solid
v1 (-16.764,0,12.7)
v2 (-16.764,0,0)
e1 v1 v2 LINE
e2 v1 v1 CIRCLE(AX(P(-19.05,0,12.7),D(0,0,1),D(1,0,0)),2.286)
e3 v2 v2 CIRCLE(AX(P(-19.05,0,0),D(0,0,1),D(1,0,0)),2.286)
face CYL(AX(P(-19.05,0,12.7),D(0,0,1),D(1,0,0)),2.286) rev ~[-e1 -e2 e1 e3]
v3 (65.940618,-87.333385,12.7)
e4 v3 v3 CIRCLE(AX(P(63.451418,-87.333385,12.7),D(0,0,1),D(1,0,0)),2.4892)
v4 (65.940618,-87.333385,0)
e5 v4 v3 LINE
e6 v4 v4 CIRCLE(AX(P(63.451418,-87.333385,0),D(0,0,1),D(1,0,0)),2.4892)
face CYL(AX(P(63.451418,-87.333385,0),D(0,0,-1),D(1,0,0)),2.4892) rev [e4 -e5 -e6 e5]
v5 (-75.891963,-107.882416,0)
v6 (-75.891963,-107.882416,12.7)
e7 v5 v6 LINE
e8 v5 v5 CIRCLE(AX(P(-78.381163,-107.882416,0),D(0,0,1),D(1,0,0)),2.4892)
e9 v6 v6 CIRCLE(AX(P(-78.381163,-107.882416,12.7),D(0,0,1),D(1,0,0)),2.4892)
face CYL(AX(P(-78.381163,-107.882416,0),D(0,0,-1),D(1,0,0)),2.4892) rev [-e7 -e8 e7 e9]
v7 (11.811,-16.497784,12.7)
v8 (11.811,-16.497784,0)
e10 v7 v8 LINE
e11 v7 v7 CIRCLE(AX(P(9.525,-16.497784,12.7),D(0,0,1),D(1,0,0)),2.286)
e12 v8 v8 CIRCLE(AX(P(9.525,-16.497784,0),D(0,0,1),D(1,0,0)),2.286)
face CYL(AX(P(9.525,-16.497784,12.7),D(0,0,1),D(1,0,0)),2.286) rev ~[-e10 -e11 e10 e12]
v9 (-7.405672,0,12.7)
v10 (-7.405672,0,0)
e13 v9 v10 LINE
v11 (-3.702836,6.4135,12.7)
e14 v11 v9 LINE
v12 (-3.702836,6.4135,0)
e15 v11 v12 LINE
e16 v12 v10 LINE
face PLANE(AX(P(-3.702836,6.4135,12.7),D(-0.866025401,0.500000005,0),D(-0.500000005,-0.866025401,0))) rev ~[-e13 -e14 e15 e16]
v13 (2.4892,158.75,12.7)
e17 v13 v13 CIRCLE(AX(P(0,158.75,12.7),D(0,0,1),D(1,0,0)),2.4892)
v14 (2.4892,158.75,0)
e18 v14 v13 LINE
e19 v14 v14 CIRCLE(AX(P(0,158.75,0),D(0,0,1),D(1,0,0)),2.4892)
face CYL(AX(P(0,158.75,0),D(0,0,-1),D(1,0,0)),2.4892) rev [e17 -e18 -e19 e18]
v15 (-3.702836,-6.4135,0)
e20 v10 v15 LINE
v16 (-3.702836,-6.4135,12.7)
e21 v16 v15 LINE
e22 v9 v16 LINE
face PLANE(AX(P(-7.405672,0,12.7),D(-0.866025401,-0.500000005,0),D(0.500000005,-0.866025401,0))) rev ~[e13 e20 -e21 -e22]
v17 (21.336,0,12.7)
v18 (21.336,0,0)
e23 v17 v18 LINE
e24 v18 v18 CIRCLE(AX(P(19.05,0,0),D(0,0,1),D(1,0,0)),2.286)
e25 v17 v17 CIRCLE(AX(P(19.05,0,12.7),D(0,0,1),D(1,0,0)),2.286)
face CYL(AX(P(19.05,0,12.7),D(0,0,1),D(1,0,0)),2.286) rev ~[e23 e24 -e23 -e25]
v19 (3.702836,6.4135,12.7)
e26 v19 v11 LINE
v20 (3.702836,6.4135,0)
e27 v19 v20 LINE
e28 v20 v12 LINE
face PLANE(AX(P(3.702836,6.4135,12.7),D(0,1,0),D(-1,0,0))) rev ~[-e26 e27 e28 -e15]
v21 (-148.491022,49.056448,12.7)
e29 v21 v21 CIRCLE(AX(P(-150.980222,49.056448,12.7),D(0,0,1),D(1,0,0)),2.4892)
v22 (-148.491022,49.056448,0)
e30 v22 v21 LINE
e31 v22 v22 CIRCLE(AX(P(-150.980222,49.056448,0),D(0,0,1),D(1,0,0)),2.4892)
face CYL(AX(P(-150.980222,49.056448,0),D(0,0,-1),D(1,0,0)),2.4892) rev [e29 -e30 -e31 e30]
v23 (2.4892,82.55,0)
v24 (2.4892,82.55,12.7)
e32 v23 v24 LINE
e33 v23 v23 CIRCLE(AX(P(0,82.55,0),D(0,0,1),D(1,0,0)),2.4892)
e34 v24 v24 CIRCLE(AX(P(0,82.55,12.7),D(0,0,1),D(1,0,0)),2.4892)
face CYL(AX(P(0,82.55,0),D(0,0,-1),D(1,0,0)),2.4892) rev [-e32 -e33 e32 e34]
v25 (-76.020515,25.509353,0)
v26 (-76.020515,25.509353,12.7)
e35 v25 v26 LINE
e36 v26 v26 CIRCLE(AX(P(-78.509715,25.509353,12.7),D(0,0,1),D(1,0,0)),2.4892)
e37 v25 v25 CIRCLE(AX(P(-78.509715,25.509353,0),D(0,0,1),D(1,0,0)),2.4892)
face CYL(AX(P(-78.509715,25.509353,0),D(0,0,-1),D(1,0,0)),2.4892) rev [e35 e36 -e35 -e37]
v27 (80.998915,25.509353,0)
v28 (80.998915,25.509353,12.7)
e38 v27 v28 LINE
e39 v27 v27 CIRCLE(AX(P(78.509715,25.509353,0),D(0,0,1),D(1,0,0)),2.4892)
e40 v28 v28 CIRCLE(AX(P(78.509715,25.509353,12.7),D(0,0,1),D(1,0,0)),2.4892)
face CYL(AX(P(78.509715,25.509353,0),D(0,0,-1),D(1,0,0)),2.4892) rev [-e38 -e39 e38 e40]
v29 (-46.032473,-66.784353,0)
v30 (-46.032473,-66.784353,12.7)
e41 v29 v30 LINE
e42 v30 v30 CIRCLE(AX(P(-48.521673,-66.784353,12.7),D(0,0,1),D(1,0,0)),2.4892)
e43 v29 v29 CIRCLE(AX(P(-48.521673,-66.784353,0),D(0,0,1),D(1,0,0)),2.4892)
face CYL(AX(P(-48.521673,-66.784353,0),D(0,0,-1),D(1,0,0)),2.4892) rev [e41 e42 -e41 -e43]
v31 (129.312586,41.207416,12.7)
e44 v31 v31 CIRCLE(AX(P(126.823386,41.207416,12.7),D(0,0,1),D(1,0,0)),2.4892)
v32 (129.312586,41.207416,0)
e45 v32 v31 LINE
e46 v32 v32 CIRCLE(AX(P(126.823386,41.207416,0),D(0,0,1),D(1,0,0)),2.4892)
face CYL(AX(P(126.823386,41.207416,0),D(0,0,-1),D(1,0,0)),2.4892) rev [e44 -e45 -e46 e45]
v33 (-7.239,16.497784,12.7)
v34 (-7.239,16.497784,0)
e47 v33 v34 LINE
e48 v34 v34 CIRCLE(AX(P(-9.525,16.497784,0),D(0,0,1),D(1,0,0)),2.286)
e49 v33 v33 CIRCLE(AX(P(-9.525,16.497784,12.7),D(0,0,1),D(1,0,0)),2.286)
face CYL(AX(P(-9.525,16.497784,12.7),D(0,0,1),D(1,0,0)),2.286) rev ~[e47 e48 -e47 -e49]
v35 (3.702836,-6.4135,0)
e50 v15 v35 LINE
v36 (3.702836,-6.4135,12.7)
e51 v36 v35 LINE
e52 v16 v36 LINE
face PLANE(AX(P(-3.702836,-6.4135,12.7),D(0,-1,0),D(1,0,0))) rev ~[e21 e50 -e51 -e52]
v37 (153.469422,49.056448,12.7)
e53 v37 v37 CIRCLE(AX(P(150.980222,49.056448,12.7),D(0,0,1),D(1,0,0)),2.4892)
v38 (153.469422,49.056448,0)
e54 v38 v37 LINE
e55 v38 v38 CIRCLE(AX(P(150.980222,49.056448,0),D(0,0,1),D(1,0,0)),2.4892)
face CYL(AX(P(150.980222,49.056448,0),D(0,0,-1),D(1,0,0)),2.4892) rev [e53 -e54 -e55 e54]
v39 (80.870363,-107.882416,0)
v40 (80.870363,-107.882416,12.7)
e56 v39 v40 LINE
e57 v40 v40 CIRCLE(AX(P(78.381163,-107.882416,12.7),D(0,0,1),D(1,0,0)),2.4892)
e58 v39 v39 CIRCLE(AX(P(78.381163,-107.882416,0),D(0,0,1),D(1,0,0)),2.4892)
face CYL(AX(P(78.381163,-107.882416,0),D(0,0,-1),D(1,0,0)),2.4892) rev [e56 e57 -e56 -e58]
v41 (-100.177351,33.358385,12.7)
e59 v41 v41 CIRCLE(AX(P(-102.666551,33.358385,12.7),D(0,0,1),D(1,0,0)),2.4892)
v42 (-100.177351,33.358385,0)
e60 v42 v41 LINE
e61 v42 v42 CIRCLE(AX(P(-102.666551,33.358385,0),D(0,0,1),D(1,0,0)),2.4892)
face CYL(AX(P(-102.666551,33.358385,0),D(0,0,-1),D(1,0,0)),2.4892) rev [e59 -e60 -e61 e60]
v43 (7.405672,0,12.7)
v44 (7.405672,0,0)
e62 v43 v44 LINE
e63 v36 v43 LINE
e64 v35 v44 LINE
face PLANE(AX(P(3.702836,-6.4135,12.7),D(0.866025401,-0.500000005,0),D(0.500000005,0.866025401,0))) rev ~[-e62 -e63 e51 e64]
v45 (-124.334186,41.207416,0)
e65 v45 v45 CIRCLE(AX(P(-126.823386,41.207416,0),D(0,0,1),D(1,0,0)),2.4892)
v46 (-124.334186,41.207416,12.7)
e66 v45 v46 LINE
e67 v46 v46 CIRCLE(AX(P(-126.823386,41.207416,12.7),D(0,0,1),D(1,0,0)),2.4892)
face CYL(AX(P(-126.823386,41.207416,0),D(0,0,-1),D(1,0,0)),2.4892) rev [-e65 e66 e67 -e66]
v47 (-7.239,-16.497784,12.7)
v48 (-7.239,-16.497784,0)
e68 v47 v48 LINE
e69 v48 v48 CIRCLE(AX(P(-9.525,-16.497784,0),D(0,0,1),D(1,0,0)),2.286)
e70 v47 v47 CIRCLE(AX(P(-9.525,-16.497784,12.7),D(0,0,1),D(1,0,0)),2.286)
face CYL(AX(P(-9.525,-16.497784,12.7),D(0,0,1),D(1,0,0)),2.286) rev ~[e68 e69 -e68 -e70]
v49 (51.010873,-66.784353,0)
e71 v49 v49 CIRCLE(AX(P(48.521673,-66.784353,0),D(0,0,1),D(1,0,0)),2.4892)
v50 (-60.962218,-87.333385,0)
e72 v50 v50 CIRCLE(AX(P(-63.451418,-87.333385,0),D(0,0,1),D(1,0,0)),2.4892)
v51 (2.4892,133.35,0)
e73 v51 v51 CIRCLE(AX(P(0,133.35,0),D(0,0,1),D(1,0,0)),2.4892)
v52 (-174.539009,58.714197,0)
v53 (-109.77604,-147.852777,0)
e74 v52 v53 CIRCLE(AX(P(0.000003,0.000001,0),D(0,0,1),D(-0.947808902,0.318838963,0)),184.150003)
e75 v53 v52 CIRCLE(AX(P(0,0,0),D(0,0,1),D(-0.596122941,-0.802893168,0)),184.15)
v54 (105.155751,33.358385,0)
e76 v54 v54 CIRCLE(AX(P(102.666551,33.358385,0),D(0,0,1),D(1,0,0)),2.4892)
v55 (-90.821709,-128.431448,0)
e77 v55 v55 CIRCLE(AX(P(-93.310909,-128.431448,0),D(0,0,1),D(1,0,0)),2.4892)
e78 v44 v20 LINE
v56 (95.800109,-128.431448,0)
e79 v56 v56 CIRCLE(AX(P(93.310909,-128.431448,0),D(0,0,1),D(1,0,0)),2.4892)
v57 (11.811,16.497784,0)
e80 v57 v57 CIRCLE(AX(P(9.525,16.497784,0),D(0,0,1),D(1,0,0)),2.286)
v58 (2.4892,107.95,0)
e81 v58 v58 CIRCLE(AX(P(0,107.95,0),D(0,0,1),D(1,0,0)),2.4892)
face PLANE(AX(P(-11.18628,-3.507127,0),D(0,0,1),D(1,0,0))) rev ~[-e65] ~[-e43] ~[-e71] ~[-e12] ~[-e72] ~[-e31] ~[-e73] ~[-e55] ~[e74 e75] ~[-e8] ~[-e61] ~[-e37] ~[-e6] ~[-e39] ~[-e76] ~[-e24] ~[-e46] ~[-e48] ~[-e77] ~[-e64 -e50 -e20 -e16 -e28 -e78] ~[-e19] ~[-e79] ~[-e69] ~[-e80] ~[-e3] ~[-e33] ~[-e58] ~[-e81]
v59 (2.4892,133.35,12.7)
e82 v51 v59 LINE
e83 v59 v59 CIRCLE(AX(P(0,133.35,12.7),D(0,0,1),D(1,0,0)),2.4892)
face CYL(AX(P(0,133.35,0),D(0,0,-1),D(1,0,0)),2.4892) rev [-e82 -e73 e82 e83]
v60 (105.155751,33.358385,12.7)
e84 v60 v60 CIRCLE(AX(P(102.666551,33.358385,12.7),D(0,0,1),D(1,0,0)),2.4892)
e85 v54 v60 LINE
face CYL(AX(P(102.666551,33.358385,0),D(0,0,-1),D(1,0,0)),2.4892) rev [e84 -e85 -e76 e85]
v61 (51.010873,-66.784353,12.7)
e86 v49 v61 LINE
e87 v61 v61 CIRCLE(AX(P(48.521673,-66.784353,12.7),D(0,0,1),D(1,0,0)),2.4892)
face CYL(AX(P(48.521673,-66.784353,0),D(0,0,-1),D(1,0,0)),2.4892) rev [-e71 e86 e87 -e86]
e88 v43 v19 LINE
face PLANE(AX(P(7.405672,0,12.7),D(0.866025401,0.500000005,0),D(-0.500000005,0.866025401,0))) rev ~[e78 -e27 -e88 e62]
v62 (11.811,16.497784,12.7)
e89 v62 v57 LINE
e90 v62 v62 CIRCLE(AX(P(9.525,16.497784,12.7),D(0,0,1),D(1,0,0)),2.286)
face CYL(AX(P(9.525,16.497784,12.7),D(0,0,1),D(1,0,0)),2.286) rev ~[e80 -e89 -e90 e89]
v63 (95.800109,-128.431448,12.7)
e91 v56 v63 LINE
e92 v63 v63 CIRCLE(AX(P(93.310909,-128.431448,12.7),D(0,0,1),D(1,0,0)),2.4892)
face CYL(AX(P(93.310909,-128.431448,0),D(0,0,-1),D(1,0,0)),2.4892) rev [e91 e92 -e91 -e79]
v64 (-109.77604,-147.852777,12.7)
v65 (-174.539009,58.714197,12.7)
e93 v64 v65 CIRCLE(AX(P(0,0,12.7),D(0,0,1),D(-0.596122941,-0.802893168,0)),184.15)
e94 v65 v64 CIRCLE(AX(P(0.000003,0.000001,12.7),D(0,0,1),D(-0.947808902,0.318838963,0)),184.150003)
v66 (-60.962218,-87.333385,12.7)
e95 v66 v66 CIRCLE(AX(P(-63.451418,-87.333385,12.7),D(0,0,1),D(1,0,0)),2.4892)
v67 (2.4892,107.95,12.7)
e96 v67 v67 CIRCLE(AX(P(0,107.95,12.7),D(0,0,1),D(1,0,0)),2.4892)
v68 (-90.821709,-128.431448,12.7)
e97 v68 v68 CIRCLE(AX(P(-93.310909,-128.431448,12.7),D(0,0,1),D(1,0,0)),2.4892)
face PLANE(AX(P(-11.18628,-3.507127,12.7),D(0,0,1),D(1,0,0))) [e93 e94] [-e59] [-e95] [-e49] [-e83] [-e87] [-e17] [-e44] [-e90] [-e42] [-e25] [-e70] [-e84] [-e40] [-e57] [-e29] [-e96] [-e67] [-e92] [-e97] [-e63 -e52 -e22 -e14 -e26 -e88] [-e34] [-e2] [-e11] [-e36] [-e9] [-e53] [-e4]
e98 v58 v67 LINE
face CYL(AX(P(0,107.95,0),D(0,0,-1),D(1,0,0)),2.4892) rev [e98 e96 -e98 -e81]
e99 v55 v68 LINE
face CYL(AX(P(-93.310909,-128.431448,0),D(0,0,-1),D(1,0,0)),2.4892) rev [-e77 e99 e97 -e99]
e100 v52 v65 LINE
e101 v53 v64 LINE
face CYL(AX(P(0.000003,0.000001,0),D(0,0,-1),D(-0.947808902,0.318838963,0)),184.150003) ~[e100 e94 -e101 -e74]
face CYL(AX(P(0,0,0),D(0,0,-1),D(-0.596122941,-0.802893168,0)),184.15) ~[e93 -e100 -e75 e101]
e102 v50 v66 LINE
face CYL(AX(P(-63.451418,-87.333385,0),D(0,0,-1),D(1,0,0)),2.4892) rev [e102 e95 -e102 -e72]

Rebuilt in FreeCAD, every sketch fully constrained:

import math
import FreeCAD as App
import Part
import Sketcher
from FreeCAD import Vector
Q = App.Units.Quantity

doc = App.newDocument("Part")
body = doc.addObject("PartDesign::Body", "Body")

# Sketch on XY plane
sketch1 = doc.addObject("Sketcher::SketchObject", "Sketch")
body.addObject(sketch1)
sketch1.AttachmentSupport = (doc.XY_Plane, [""])
sketch1.MapMode = "FlatFace"
sketch1.addGeometry([
    Part.ArcOfCircle(Part.Circle(Vector(0, 0, 0), Vector(0, 0, 1), 184.2), math.radians(-127), math.radians(161)),  # 0
    Part.ArcOfCircle(Part.Circle(Vector(0, 0, 0), Vector(0, 0, 1), 184.2), math.radians(161), math.radians(233)),  # 1
    Part.Circle(Vector(-93.3, -128.4, 0), Vector(0, 0, 1), 2.5),  # 2
    Part.Circle(Vector(-78.4, -107.9, 0), Vector(0, 0, 1), 2.5),  # 3
    Part.Circle(Vector(-63.5, -87.3, 0), Vector(0, 0, 1), 2.5),  # 4
    Part.Circle(Vector(-48.5, -66.8, 0), Vector(0, 0, 1), 2.5),  # 5
    Part.Circle(Vector(63.5, -87.3, 0), Vector(0, 0, 1), 2.5),  # 6
    Part.Circle(Vector(48.5, -66.8, 0), Vector(0, 0, 1), 2.5),  # 7
    Part.Circle(Vector(93.3, -128.4, 0), Vector(0, 0, 1), 2.5),  # 8
    Part.Circle(Vector(78.4, -107.9, 0), Vector(0, 0, 1), 2.5),  # 9
    Part.Circle(Vector(-151, 49.1, 0), Vector(0, 0, 1), 2.5),  # 10
    Part.Circle(Vector(-126.8, 41.2, 0), Vector(0, 0, 1), 2.5),  # 11
    Part.Circle(Vector(-102.7, 33.4, 0), Vector(0, 0, 1), 2.5),  # 12
    Part.Circle(Vector(-78.5, 25.5, 0), Vector(0, 0, 1), 2.5),  # 13
    Part.Circle(Vector(0, 82.5, 0), Vector(0, 0, 1), 2.5),  # 14
    Part.Circle(Vector(78.5, 25.5, 0), Vector(0, 0, 1), 2.5),  # 15
    Part.Circle(Vector(102.7, 33.4, 0), Vector(0, 0, 1), 2.5),  # 16
    Part.Circle(Vector(126.8, 41.2, 0), Vector(0, 0, 1), 2.5),  # 17
    Part.Circle(Vector(151, 49.1, 0), Vector(0, 0, 1), 2.5),  # 18
    Part.Circle(Vector(0, 108, 0), Vector(0, 0, 1), 2.5),  # 19
    Part.Circle(Vector(0, 133.3, 0), Vector(0, 0, 1), 2.5),  # 20
    Part.Circle(Vector(0, 158.8, 0), Vector(0, 0, 1), 2.5),  # 21
], False)
sketch1.addConstraint([
    Sketcher.Constraint("Tangent", 0, 1, 1, 2),
    Sketcher.Constraint("Coincident", 1, 1, 0, 2),
    Sketcher.Constraint("Coincident", 0, 3, -1, 1),
    Sketcher.Constraint("Equal", 2, 3),
    Sketcher.Constraint("Equal", 3, 4),
    Sketcher.Constraint("Equal", 4, 5),
    Sketcher.Constraint("Equal", 5, 6),
    Sketcher.Constraint("Equal", 6, 7),
    Sketcher.Constraint("Equal", 7, 8),
    Sketcher.Constraint("Equal", 8, 9),
    Sketcher.Constraint("Equal", 9, 10),
    Sketcher.Constraint("Equal", 10, 11),
    Sketcher.Constraint("Equal", 11, 12),
    Sketcher.Constraint("Equal", 12, 13),
    Sketcher.Constraint("Equal", 13, 14),
    Sketcher.Constraint("Equal", 14, 15),
    Sketcher.Constraint("Equal", 15, 16),
    Sketcher.Constraint("Equal", 16, 17),
    Sketcher.Constraint("Equal", 17, 18),
    Sketcher.Constraint("Equal", 18, 19),
    Sketcher.Constraint("Equal", 19, 20),
    Sketcher.Constraint("Equal", 20, 21),
    Sketcher.Constraint("Symmetric", 4, 3, 6, 3, -2),
    Sketcher.Constraint("Symmetric", 5, 3, 7, 3, -2),
    Sketcher.Constraint("Symmetric", 2, 3, 8, 3, -2),
    Sketcher.Constraint("Symmetric", 3, 3, 9, 3, -2),
    Sketcher.Constraint("Symmetric", 13, 3, 15, 3, -2),
    Sketcher.Constraint("Symmetric", 12, 3, 16, 3, -2),
    Sketcher.Constraint("Symmetric", 11, 3, 17, 3, -2),
    Sketcher.Constraint("Symmetric", 10, 3, 18, 3, -2),
    Sketcher.Constraint("PointOnObject", 14, 3, -2),
    Sketcher.Constraint("PointOnObject", 19, 3, -2),
    Sketcher.Constraint("PointOnObject", 20, 3, -2),
    Sketcher.Constraint("PointOnObject", 21, 3, -2),
    Sketcher.Constraint("Radius", 0, Q("7.25 in")),
    Sketcher.Constraint("Diameter", 2, Q("0.196 in")),
    Sketcher.Constraint("DistanceY", 14, 3, 19, 3, Q("1 in")),
    Sketcher.Constraint("DistanceY", 19, 3, 20, 3, Q("1 in")),
    Sketcher.Constraint("DistanceY", 20, 3, 21, 3, Q("1 in")),
    Sketcher.Constraint("DistanceY", -1, 1, 14, 3, Q("3.25 in")),
    Sketcher.Constraint("DistanceY", 5, 3, 10, 3, 115.840801),
    Sketcher.Constraint("DistanceY", 4, 3, 11, 3, 128.540801),
    Sketcher.Constraint("DistanceX", 2, 3, -1, 1, 93.310909),
    Sketcher.Constraint("DistanceX", 10, 3, -1, 1, 150.980222),
    Sketcher.Constraint("DistanceY", -1, 1, 10, 3, 49.056448),
    Sketcher.Constraint("DistanceX", 12, 3, -1, 1, 102.666551),
    Sketcher.Constraint("DistanceX", 0, 1, -1, 1, 109.77604),
    Sketcher.Constraint("DistanceX", 1, 1, -1, 1, 174.539009),
    Sketcher.Constraint("DistanceY", 2, 3, 1, 3, 128.431449),
    Sketcher.Constraint("DistanceY", 2, 3, 3, 3, 20.549032),
    Sketcher.Constraint("DistanceY", 3, 3, 4, 3, 20.549031),
    Sketcher.Constraint("DistanceX", 2, 3, 4, 3, 29.859491),
    Sketcher.Constraint("DistanceX", 3, 3, 5, 3, 29.85949),
    Sketcher.Constraint("DistanceX", 5, 3, 6, 3, 111.973091),
    Sketcher.Constraint("DistanceX", 11, 3, 1, 3, 126.823389),
    Sketcher.Constraint("DistanceY", 12, 3, 11, 3, 7.849031),
    Sketcher.Constraint("DistanceY", 13, 3, 12, 3, 7.849032),
    Sketcher.Constraint("DistanceX", 11, 3, 13, 3, 48.313671),
])
pad1 = doc.addObject("PartDesign::Pad", "Pad")
body.addObject(pad1)
pad1.Profile = sketch1
pad1.Length = Q("0.5 in")

# Sketch on XY plane
sketch2 = doc.addObject("Sketcher::SketchObject", "Sketch001")
body.addObject(sketch2)
sketch2.AttachmentSupport = (doc.XY_Plane, [""])
sketch2.MapMode = "FlatFace"
sketch2.AttachmentOffset = App.Placement(Vector(0, 0, 0.5 * 25.4), App.Rotation())
sketch2.addGeometry([
    Part.LineSegment(Vector(3.7, 6.4, 0), Vector(-3.7, 6.4, 0)),  # 0
    Part.LineSegment(Vector(-3.7, 6.4, 0), Vector(-7.4, 0, 0)),  # 1
    Part.LineSegment(Vector(-7.4, 0, 0), Vector(-3.7, -6.4, 0)),  # 2
    Part.LineSegment(Vector(-3.7, -6.4, 0), Vector(3.7, -6.4, 0)),  # 3
    Part.LineSegment(Vector(3.7, -6.4, 0), Vector(7.4, 0, 0)),  # 4
    Part.LineSegment(Vector(7.4, 0, 0), Vector(3.7, 6.4, 0)),  # 5
    Part.Circle(Vector(-19.1, 0, 0), Vector(0, 0, 1), 2.3),  # 6
    Part.Circle(Vector(-9.5, -16.5, 0), Vector(0, 0, 1), 2.3),  # 7
    Part.Circle(Vector(9.5, -16.5, 0), Vector(0, 0, 1), 2.3),  # 8
    Part.Circle(Vector(19.1, 0, 0), Vector(0, 0, 1), 2.3),  # 9
    Part.Circle(Vector(9.5, 16.5, 0), Vector(0, 0, 1), 2.3),  # 10
    Part.Circle(Vector(-9.5, 16.5, 0), Vector(0, 0, 1), 2.3),  # 11
], False)
sketch2.addConstraint([
    Sketcher.Constraint("Coincident", 0, 2, 1, 1),
    Sketcher.Constraint("Coincident", 1, 2, 2, 1),
    Sketcher.Constraint("Coincident", 2, 2, 3, 1),
    Sketcher.Constraint("Coincident", 3, 2, 4, 1),
    Sketcher.Constraint("Coincident", 4, 2, 5, 1),
    Sketcher.Constraint("Coincident", 5, 2, 0, 1),
    Sketcher.Constraint("Horizontal", 0),
    Sketcher.Constraint("Horizontal", 3),
    Sketcher.Constraint("Equal", 6, 7),
    Sketcher.Constraint("Equal", 7, 8),
    Sketcher.Constraint("Equal", 8, 9),
    Sketcher.Constraint("Equal", 9, 10),
    Sketcher.Constraint("Equal", 10, 11),
    Sketcher.Constraint("Symmetric", 6, 3, 9, 3, -1, 1),
    Sketcher.Constraint("Symmetric", 7, 3, 10, 3, -1, 1),
    Sketcher.Constraint("Symmetric", 8, 3, 11, 3, -1, 1),
    Sketcher.Constraint("Symmetric", 0, 2, 3, 2, -1, 1),
    Sketcher.Constraint("Symmetric", 1, 2, 4, 2, -1, 1),
    Sketcher.Constraint("Symmetric", 7, 3, 8, 3, -2),
    Sketcher.Constraint("PointOnObject", 6, 3, -1),
    Sketcher.Constraint("PointOnObject", 1, 2, -1),
    Sketcher.Constraint("Parallel", 2, 5),
    Sketcher.Constraint("Vertical", 0, 2, 2, 2),
    Sketcher.Constraint("Diameter", 6, Q("0.18 in")),
    Sketcher.Constraint("Angle", 1, Q("-120 deg")),
    Sketcher.Constraint("DistanceX", 6, 3, 9, 3, Q("1.5 in")),
    Sketcher.Constraint("DistanceX", 7, 3, 8, 3, Q("0.75 in")),
    Sketcher.Constraint("DistanceY", 2, 2, 0, 2, Q("0.505 in")),
    Sketcher.Constraint("DistanceX", 0, 2, 0, 1, 7.405672),
    Sketcher.Constraint("DistanceY", 7, 3, -1, 1, 16.497784),
])
pocket1 = doc.addObject("PartDesign::Pocket", "Pocket")
body.addObject(pocket1)
pocket1.Profile = sketch2
pocket1.Type = "ThroughAll"

doc.recompute()
